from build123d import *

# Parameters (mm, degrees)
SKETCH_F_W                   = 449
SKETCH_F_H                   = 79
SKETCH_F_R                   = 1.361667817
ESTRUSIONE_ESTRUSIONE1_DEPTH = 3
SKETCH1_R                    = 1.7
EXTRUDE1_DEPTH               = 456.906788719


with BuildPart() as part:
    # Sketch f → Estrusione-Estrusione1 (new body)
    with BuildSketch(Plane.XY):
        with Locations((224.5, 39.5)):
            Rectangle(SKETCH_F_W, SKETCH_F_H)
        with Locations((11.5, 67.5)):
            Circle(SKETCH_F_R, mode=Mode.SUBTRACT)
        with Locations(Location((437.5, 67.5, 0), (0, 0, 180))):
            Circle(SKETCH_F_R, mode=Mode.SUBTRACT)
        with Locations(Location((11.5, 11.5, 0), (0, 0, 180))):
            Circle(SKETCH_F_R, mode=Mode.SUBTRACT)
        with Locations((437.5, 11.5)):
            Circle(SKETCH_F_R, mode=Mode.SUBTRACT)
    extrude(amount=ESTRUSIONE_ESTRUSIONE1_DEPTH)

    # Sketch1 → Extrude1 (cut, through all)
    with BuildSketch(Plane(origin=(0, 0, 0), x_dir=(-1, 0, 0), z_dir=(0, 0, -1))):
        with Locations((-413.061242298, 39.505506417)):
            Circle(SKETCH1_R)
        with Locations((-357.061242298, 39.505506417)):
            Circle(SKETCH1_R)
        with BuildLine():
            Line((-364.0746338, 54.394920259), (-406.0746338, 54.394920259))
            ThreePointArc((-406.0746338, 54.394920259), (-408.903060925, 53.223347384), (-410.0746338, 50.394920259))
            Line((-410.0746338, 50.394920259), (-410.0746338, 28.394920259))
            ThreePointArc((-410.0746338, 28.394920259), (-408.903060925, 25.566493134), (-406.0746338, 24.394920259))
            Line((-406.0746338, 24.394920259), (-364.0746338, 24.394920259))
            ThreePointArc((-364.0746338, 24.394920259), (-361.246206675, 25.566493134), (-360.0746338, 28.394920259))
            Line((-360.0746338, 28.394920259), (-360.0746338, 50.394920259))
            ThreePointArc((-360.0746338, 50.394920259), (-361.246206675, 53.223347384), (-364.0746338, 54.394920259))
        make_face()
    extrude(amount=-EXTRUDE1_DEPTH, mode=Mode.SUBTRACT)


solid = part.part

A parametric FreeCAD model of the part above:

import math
import FreeCAD as App
import Part
import Sketcher
Q = App.Units.Quantity


def add_polygon(sketch, points):
    """Adds a closed chain of lines whose ends are joined by coincident constraints."""
    first, n = sketch.GeometryCount, len(points)
    for a, b in zip(points, points[1:] + points[:1]):
        sketch.addGeometry(Part.LineSegment(App.Vector(*a, 0), App.Vector(*b, 0)), False)
    for i in range(n):
        sketch.addConstraint(Sketcher.Constraint("Coincident", first + i, 2, first + (i + 1) % n, 1))

doc = App.newDocument("Part")
body = doc.addObject("PartDesign::Body", "Body")

# Sketch on XY plane
sketch1 = body.newObject("Sketcher::SketchObject", "Sketch")
sketch1.AttachmentSupport = (doc.getObject("XY_Plane"), [""])
sketch1.MapMode = "FlatFace"
add_polygon(sketch1, [(0, 79), (0, 0), (449, 0), (449, 79)])  # lines 0-3
sketch1.addGeometry(Part.Circle(App.Vector(11.5, 11.5, 0), App.Vector(0, 0, 1), 1.4), False)  # 4
sketch1.addGeometry(Part.Circle(App.Vector(437.5, 11.5, 0), App.Vector(0, 0, 1), 1.4), False)  # 5
sketch1.addGeometry(Part.Circle(App.Vector(11.5, 67.5, 0), App.Vector(0, 0, 1), 1.4), False)  # 6
sketch1.addGeometry(Part.Circle(App.Vector(437.5, 67.5, 0), App.Vector(0, 0, 1), 1.4), False)  # 7
sketch1.addConstraint(Sketcher.Constraint("Vertical", 0))
sketch1.addConstraint(Sketcher.Constraint("Horizontal", 1))
sketch1.addConstraint(Sketcher.Constraint("Vertical", 2))
sketch1.addConstraint(Sketcher.Constraint("Horizontal", 3))
sketch1.addConstraint(Sketcher.Constraint("Coincident", 0, 2, -1, 1))
sketch1.addConstraint(Sketcher.Constraint("Equal", 4, 5))
sketch1.addConstraint(Sketcher.Constraint("Equal", 5, 6))
sketch1.addConstraint(Sketcher.Constraint("Equal", 6, 7))
sketch1.addConstraint(Sketcher.Constraint("Horizontal", 4, 3, 5, 3))
sketch1.addConstraint(Sketcher.Constraint("Horizontal", 6, 3, 7, 3))
sketch1.addConstraint(Sketcher.Constraint("Vertical", 4, 3, 6, 3))
sketch1.addConstraint(Sketcher.Constraint("Vertical", 5, 3, 7, 3))
sketch1.addConstraint(Sketcher.Constraint("DistanceX", 1, 1, 1, 2, Q("449 mm")))
sketch1.addConstraint(Sketcher.Constraint("DistanceY", 0, 2, 0, 1, Q("79 mm")))
sketch1.addConstraint(Sketcher.Constraint("DistanceX", 4, 3, 5, 3, Q("426 mm")))
sketch1.addConstraint(Sketcher.Constraint("DistanceY", 4, 3, 6, 3, Q("56 mm")))
sketch1.addConstraint(Sketcher.Constraint("DistanceX", -1, 1, 4, 3, Q("11.5 mm")))
sketch1.addConstraint(Sketcher.Constraint("DistanceY", -1, 1, 4, 3, Q("11.5 mm")))
sketch1.addConstraint(Sketcher.Constraint("Diameter", 4, Q("2.723336 mm")))
pad1 = body.newObject("PartDesign::Pad", "Pad")
pad1.Profile = sketch1
pad1.Length = 3

# Sketch on XY plane
sketch2 = body.newObject("Sketcher::SketchObject", "Sketch001")
sketch2.AttachmentSupport = (doc.getObject("XY_Plane"), [""])
sketch2.MapMode = "FlatFace"
sketch2.addGeometry(Part.Circle(App.Vector(413.1, 39.5, 0), App.Vector(0, 0, 1), 1.7), False)
sketch2.addGeometry(Part.Circle(App.Vector(357.1, 39.5, 0), App.Vector(0, 0, 1), 1.7), False)
sketch2.addGeometry(Part.LineSegment(App.Vector(364.1, 54.4, 0), App.Vector(406.1, 54.4, 0)), False)
sketch2.addGeometry(Part.ArcOfCircle(Part.Circle(App.Vector(406.1, 50.4, 0), App.Vector(0, 0, 1), 4), math.radians(0), math.radians(90)), False)
sketch2.addGeometry(Part.LineSegment(App.Vector(410.1, 50.4, 0), App.Vector(410.1, 28.4, 0)), False)
sketch2.addGeometry(Part.ArcOfCircle(Part.Circle(App.Vector(406.1, 28.4, 0), App.Vector(0, 0, 1), 4), math.radians(-90), math.radians(0)), False)
sketch2.addGeometry(Part.LineSegment(App.Vector(406.1, 24.4, 0), App.Vector(364.1, 24.4, 0)), False)
sketch2.addGeometry(Part.ArcOfCircle(Part.Circle(App.Vector(364.1, 28.4, 0), App.Vector(0, 0, 1), 4), math.radians(180), math.radians(270)), False)
sketch2.addGeometry(Part.LineSegment(App.Vector(360.1, 28.4, 0), App.Vector(360.1, 50.4, 0)), False)
sketch2.addGeometry(Part.ArcOfCircle(Part.Circle(App.Vector(364.1, 50.4, 0), App.Vector(0, 0, 1), 4), math.radians(90), math.radians(180)), False)
sketch2.addConstraint(Sketcher.Constraint("Tangent", 2, 2, 3, 2))
sketch2.addConstraint(Sketcher.Constraint("Tangent", 3, 1, 4, 1))
sketch2.addConstraint(Sketcher.Constraint("Tangent", 4, 2, 5, 2))
sketch2.addConstraint(Sketcher.Constraint("Tangent", 5, 1, 6, 1))
sketch2.addConstraint(Sketcher.Constraint("Tangent", 6, 2, 7, 2))
sketch2.addConstraint(Sketcher.Constraint("Tangent", 7, 1, 8, 1))
sketch2.addConstraint(Sketcher.Constraint("Tangent", 8, 2, 9, 2))
sketch2.addConstraint(Sketcher.Constraint("Tangent", 9, 1, 2, 1))
sketch2.addConstraint(Sketcher.Constraint("Horizontal", 2))
sketch2.addConstraint(Sketcher.Constraint("Vertical", 4))
sketch2.addConstraint(Sketcher.Constraint("Horizontal", 6))
sketch2.addConstraint(Sketcher.Constraint("Vertical", 8))
sketch2.addConstraint(Sketcher.Constraint("Equal", 0, 1))
sketch2.addConstraint(Sketcher.Constraint("Equal", 3, 5))
sketch2.addConstraint(Sketcher.Constraint("Equal", 5, 7))
sketch2.addConstraint(Sketcher.Constraint("Equal", 7, 9))
sketch2.addConstraint(Sketcher.Constraint("Horizontal", 0, 3, 1, 3))
sketch2.addConstraint(Sketcher.Constraint("Radius", 3, Q("4 mm")))
sketch2.addConstraint(Sketcher.Constraint("Diameter", 0, Q("3.4 mm")))
sketch2.addConstraint(Sketcher.Constraint("DistanceX", 2, 1, 2, 2, Q("42 mm")))
sketch2.addConstraint(Sketcher.Constraint("DistanceY", 4, 2, 4, 1, Q("22 mm")))
sketch2.addConstraint(Sketcher.Constraint("DistanceX", 1, 3, 0, 3, Q("56 mm")))
sketch2.addConstraint(Sketcher.Constraint("DistanceY", -1, 1, 3, 3, Q("50.39492 mm")))
sketch2.addConstraint(Sketcher.Constraint("DistanceX", 3, 3, 0, 3, Q("6.986608 mm")))
sketch2.addConstraint(Sketcher.Constraint("DistanceX", -1, 1, 0, 3, Q("413.061242 mm")))
sketch2.addConstraint(Sketcher.Constraint("DistanceY", -1, 1, 0, 3, Q("39.505506 mm")))
pocket1 = body.newObject("PartDesign::Pocket", "Pocket")
pocket1.Profile = sketch2
pocket1.Type = "ThroughAll"
pocket1.Reversed = True

doc.recompute()
